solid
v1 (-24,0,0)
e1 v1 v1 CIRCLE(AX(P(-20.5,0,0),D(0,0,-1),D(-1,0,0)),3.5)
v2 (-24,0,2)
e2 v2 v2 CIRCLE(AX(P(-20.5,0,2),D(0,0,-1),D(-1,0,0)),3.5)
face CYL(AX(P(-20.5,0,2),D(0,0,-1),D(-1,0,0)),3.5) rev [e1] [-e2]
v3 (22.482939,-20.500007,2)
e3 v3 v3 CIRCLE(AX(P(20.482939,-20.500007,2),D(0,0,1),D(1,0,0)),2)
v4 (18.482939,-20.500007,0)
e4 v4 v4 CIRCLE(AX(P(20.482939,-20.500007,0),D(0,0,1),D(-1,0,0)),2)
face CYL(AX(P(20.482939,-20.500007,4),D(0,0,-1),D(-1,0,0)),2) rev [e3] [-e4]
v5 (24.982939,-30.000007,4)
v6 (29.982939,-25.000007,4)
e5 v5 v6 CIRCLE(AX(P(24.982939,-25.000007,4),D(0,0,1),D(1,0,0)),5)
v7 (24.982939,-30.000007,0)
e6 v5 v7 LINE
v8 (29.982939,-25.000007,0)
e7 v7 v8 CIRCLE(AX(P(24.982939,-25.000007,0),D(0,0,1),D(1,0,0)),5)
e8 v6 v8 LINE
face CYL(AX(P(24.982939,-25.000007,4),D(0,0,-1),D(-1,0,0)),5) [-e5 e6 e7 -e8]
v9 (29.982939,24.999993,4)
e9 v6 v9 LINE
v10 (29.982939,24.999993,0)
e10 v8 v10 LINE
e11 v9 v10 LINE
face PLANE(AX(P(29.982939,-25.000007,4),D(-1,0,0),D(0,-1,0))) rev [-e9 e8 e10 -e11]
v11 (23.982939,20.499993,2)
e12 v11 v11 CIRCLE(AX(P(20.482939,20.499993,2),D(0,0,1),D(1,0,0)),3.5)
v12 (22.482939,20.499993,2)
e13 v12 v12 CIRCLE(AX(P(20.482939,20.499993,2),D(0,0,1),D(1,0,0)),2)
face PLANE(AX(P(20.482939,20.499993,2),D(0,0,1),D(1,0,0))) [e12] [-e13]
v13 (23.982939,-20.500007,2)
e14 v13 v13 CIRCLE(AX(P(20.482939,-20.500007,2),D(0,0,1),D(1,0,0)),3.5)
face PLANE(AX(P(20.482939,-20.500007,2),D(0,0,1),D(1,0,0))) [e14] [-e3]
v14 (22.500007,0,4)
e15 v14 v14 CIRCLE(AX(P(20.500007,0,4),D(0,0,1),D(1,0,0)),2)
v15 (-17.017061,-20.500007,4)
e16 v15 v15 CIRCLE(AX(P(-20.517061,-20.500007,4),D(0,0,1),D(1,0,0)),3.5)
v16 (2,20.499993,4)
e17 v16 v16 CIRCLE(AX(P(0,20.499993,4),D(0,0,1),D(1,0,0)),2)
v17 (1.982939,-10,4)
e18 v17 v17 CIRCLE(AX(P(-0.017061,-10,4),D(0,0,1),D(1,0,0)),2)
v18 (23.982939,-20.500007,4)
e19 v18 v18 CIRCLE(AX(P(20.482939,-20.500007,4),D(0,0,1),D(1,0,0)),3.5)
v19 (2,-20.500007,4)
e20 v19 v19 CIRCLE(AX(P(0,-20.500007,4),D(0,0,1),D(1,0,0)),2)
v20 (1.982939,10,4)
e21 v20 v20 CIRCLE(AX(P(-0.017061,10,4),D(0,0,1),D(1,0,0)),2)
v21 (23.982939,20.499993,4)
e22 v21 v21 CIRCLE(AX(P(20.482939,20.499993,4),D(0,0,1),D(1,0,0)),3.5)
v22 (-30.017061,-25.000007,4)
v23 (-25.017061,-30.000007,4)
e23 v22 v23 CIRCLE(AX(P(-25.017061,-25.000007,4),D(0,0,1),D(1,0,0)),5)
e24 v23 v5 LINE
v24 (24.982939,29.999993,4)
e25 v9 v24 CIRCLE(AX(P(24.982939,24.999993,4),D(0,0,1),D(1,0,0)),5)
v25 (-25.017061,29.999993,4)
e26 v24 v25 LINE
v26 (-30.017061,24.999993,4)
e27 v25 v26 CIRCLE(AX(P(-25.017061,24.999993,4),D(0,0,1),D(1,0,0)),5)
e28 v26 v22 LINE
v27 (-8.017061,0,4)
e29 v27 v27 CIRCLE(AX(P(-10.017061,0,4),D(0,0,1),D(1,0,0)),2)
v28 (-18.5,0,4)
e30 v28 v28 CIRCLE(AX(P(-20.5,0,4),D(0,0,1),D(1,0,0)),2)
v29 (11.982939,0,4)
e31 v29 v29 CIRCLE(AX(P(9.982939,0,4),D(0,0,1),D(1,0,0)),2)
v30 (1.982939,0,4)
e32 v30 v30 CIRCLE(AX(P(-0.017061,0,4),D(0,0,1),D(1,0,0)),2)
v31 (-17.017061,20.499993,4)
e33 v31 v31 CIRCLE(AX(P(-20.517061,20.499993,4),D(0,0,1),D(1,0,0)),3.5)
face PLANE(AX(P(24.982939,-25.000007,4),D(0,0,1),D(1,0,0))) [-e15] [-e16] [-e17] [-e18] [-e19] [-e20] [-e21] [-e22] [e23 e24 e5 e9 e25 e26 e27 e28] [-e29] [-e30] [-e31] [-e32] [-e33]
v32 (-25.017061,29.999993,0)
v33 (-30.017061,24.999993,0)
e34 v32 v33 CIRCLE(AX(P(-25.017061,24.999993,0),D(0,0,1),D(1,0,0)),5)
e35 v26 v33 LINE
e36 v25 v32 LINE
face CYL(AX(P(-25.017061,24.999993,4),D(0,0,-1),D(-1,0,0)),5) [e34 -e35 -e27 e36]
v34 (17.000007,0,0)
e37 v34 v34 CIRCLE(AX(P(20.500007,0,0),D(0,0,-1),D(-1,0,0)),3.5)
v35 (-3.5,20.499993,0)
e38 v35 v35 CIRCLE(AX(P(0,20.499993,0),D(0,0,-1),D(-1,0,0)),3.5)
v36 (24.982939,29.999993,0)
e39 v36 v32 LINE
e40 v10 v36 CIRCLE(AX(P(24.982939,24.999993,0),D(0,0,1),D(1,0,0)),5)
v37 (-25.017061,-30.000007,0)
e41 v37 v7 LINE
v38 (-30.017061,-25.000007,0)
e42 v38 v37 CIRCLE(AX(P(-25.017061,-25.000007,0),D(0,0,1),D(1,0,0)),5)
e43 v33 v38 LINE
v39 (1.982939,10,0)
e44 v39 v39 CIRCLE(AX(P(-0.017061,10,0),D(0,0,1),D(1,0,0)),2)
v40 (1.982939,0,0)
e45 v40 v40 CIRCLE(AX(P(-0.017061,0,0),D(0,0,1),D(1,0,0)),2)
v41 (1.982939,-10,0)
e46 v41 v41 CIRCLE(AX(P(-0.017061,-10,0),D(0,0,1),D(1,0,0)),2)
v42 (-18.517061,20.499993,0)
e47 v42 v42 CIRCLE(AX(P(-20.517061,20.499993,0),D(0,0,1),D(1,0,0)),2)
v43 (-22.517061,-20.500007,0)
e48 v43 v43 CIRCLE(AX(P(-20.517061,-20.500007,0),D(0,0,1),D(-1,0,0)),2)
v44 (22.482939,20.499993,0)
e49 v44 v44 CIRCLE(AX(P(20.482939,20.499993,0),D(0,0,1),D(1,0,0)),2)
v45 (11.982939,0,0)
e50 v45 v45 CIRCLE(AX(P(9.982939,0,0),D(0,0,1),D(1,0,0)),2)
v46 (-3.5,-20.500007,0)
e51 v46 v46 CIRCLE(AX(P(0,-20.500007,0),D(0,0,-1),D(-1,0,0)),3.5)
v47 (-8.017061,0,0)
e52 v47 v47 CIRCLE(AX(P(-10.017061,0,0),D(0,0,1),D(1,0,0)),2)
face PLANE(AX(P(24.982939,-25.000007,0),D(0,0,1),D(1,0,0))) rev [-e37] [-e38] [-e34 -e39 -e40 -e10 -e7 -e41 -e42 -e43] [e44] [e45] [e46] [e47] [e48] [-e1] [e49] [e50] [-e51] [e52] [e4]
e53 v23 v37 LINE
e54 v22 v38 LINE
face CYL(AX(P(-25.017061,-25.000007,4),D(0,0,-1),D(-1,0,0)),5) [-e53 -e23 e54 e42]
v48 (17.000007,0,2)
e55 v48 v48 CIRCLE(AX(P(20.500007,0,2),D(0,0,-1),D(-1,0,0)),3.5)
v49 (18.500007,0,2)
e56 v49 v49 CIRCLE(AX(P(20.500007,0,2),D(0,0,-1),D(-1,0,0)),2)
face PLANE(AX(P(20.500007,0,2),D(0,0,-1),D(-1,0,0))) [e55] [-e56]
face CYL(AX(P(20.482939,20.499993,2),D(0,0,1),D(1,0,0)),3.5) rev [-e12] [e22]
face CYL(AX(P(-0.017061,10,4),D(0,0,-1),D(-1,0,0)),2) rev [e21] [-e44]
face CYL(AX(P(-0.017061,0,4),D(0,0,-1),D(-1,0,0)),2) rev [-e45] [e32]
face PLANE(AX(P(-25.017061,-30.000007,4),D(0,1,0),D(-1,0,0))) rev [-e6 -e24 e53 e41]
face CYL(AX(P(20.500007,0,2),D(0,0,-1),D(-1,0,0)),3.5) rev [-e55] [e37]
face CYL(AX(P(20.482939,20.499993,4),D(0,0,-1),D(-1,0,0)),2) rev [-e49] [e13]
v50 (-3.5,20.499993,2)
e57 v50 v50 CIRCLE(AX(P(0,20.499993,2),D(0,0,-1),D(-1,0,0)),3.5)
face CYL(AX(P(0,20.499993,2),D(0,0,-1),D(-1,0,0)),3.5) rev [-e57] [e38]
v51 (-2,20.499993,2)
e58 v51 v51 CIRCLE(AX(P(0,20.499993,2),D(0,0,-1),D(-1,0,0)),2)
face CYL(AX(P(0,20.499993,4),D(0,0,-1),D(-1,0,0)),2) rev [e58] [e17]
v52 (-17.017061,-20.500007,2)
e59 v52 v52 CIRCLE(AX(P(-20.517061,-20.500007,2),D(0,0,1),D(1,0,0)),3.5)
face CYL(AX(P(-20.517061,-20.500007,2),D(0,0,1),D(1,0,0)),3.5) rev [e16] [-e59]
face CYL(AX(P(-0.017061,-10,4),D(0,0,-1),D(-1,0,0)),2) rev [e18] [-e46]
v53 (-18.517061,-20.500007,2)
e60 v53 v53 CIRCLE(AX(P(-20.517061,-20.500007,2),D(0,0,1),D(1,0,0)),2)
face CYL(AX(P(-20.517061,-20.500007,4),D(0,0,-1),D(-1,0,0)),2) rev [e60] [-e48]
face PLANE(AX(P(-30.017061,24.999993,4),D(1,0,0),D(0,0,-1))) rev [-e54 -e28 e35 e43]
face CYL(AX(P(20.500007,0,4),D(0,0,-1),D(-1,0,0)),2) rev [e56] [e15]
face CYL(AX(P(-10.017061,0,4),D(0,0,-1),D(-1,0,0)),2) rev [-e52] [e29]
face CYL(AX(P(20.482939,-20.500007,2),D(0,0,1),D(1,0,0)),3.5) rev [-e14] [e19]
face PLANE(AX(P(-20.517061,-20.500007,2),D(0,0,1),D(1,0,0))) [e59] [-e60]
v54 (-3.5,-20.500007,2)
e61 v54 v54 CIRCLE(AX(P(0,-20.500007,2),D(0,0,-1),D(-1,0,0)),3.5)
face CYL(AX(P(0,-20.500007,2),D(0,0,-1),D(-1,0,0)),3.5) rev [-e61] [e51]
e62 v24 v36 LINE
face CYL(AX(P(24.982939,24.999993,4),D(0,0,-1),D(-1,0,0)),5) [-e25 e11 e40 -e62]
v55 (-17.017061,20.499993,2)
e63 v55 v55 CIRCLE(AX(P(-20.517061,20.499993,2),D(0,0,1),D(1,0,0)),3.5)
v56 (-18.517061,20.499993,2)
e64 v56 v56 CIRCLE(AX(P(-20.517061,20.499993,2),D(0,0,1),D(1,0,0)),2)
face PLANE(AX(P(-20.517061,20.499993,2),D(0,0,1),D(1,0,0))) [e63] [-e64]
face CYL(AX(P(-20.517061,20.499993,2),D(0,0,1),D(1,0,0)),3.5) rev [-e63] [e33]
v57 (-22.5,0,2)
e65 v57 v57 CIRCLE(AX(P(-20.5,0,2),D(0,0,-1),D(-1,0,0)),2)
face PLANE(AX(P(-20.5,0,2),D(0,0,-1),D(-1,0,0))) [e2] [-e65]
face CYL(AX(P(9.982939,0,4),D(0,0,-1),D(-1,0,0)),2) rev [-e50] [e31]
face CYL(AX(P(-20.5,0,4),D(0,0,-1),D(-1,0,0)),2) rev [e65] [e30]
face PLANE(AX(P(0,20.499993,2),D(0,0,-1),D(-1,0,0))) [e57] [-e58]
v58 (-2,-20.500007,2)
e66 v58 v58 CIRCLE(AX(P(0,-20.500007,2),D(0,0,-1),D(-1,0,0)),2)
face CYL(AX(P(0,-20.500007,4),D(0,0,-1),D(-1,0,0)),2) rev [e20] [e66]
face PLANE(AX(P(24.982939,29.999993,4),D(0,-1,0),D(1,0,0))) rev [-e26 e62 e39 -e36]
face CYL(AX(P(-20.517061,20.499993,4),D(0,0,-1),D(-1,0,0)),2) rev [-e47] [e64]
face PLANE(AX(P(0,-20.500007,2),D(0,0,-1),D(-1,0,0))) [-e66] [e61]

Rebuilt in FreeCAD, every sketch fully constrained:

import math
import FreeCAD as App
import Part
import Sketcher
Q = App.Units.Quantity

doc = App.newDocument("Part")
params = doc.addObject("Spreadsheet::Sheet", "Params")
for row, (alias, value) in enumerate([
    ("sketch1_diameter", "4 mm"),
    ("sketch1_radius", "5 mm"),
    ("sketch1_width", "50 mm"),
    ("pad1_length", "4 mm"),
    ("sketch2_diameter", "7 mm"),
    ("pocket1_length", "2 mm"),
    ("sketch3_diameter", "7 mm"),
    ("pocket2_length", "2 mm"),
], start=1):
    params.set(f"A{row}", alias)
    params.set(f"B{row}", "=" + value)
    params.setAlias(f"B{row}", alias)

body = doc.addObject("PartDesign::Body", "Body")

# Sketch on XY plane
sketch1 = body.newObject("Sketcher::SketchObject", "Sketch")
sketch1.AttachmentSupport = (doc.getObject("XY_Plane"), [""])
sketch1.MapMode = "FlatFace"
sketch1.addGeometry(Part.LineSegment(App.Vector(30, -25, 0), App.Vector(30, 25, 0)), False)
sketch1.addGeometry(Part.ArcOfCircle(Part.Circle(App.Vector(25, 25, 0), App.Vector(0, 0, 1), 5), math.radians(0), math.radians(90)), False)
sketch1.addGeometry(Part.LineSegment(App.Vector(25, 30, 0), App.Vector(-25, 30, 0)), False)
sketch1.addGeometry(Part.ArcOfCircle(Part.Circle(App.Vector(-25, 25, 0), App.Vector(0, 0, 1), 5), math.radians(90), math.radians(180)), False)
sketch1.addGeometry(Part.LineSegment(App.Vector(-30, 25, 0), App.Vector(-30, -25, 0)), False)
sketch1.addGeometry(Part.ArcOfCircle(Part.Circle(App.Vector(-25, -25, 0), App.Vector(0, 0, 1), 5), math.radians(180), math.radians(270)), False)
sketch1.addGeometry(Part.LineSegment(App.Vector(-25, -30, 0), App.Vector(25, -30, 0)), False)
sketch1.addGeometry(Part.ArcOfCircle(Part.Circle(App.Vector(25, -25, 0), App.Vector(0, 0, 1), 5), math.radians(-90), math.radians(0)), False)
sketch1.addGeometry(Part.Circle(App.Vector(-20.5, -20.5, 0), App.Vector(0, 0, 1), 2), False)
sketch1.addGeometry(Part.Circle(App.Vector(0, -10, 0), App.Vector(0, 0, 1), 2), False)
sketch1.addGeometry(Part.Circle(App.Vector(0, -20.5, 0), App.Vector(0, 0, 1), 2), False)
sketch1.addGeometry(Part.Circle(App.Vector(20.5, -20.5, 0), App.Vector(0, 0, 1), 2), False)
sketch1.addGeometry(Part.Circle(App.Vector(-20.5, 0, 0), App.Vector(0, 0, 1), 2), False)
sketch1.addGeometry(Part.Circle(App.Vector(-10, 0, 0), App.Vector(0, 0, 1), 2), False)
sketch1.addGeometry(Part.Circle(App.Vector(0, 0, 0), App.Vector(0, 0, 1), 2), False)
sketch1.addGeometry(Part.Circle(App.Vector(0, 10, 0), App.Vector(0, 0, 1), 2), False)
sketch1.addGeometry(Part.Circle(App.Vector(-20.5, 20.5, 0), App.Vector(0, 0, 1), 2), False)
sketch1.addGeometry(Part.Circle(App.Vector(10, 0, 0), App.Vector(0, 0, 1), 2), False)
sketch1.addGeometry(Part.Circle(App.Vector(20.5, 0, 0), App.Vector(0, 0, 1), 2), False)
sketch1.addGeometry(Part.Circle(App.Vector(0, 20.5, 0), App.Vector(0, 0, 1), 2), False)
sketch1.addGeometry(Part.Circle(App.Vector(20.5, 20.5, 0), App.Vector(0, 0, 1), 2), False)
sketch1.addConstraint(Sketcher.Constraint("Tangent", 0, 2, 1, 1))
sketch1.addConstraint(Sketcher.Constraint("Tangent", 1, 2, 2, 1))
sketch1.addConstraint(Sketcher.Constraint("Tangent", 2, 2, 3, 1))
sketch1.addConstraint(Sketcher.Constraint("Tangent", 3, 2, 4, 1))
sketch1.addConstraint(Sketcher.Constraint("Tangent", 4, 2, 5, 1))
sketch1.addConstraint(Sketcher.Constraint("Tangent", 5, 2, 6, 1))
sketch1.addConstraint(Sketcher.Constraint("Tangent", 6, 2, 7, 1))
sketch1.addConstraint(Sketcher.Constraint("Tangent", 7, 2, 0, 1))
sketch1.addConstraint(Sketcher.Constraint("Vertical", 0))
sketch1.addConstraint(Sketcher.Constraint("Horizontal", 2))
sketch1.addConstraint(Sketcher.Constraint("Vertical", 4))
sketch1.addConstraint(Sketcher.Constraint("Horizontal", 6))
sketch1.addConstraint(Sketcher.Constraint("Equal", 1, 3))
sketch1.addConstraint(Sketcher.Constraint("Equal", 3, 5))
sketch1.addConstraint(Sketcher.Constraint("Equal", 5, 7))
sketch1.addConstraint(Sketcher.Constraint("Equal", 8, 9))
sketch1.addConstraint(Sketcher.Constraint("Equal", 9, 10))
sketch1.addConstraint(Sketcher.Constraint("Equal", 10, 11))
sketch1.addConstraint(Sketcher.Constraint("Equal", 11, 12))
sketch1.addConstraint(Sketcher.Constraint("Equal", 12, 13))
sketch1.addConstraint(Sketcher.Constraint("Equal", 13, 14))
sketch1.addConstraint(Sketcher.Constraint("Equal", 14, 15))
sketch1.addConstraint(Sketcher.Constraint("Equal", 15, 16))
sketch1.addConstraint(Sketcher.Constraint("Equal", 16, 17))
sketch1.addConstraint(Sketcher.Constraint("Equal", 17, 18))
sketch1.addConstraint(Sketcher.Constraint("Equal", 18, 19))
sketch1.addConstraint(Sketcher.Constraint("Equal", 19, 20))
sketch1.addConstraint(Sketcher.Constraint("Symmetric", 12, 3, 18, 3, -1, 1))
sketch1.addConstraint(Sketcher.Constraint("Symmetric", 9, 3, 15, 3, -1))
sketch1.addConstraint(Sketcher.Constraint("PointOnObject", 10, 3, -2))
sketch1.addConstraint(Sketcher.Constraint("PointOnObject", 12, 3, -1))
sketch1.addConstraint(Sketcher.Constraint("PointOnObject", 13, 3, -1))
sketch1.addConstraint(Sketcher.Constraint("PointOnObject", 14, 3, -1))
sketch1.addConstraint(Sketcher.Constraint("PointOnObject", 17, 3, -1))
sketch1.addConstraint(Sketcher.Constraint("PointOnObject", 19, 3, -2))
sketch1.addConstraint(Sketcher.Constraint("Horizontal", 8, 3, 10, 3))
sketch1.addConstraint(Sketcher.Constraint("Horizontal", 10, 3, 11, 3))
sketch1.addConstraint(Sketcher.Constraint("Horizontal", 16, 3, 19, 3))
sketch1.addConstraint(Sketcher.Constraint("Horizontal", 19, 3, 20, 3))
sketch1.addConstraint(Sketcher.Constraint("Vertical", 9, 3, 14, 3))
sketch1.addConstraint(Sketcher.Constraint("Vertical", 8, 3, 16, 3))
sketch1.addConstraint(Sketcher.Constraint("Vertical", 11, 3, 20, 3))
sketch1.addConstraint(Sketcher.Constraint("Equal", 6, 0))
sketch1.addConstraint(Sketcher.Constraint("Diameter", 8, Q("4 mm")))
sketch1.addConstraint(Sketcher.Constraint("Radius", 1, Q("5 mm")))
sketch1.addConstraint(Sketcher.Constraint("DistanceX", 2, 2, 2, 1, Q("50 mm")))
sketch1.addConstraint(Sketcher.Constraint("DistanceY", 9, 3, -1, 1, Q("10 mm")))
sketch1.addConstraint(Sketcher.Constraint("DistanceX", 5, 3, 9, 3, Q("25 mm")))
sketch1.addConstraint(Sketcher.Constraint("DistanceX", 8, 3, 11, 3, Q("41 mm")))
sketch1.addConstraint(Sketcher.Constraint("DistanceX", 13, 3, 9, 3, Q("10 mm")))
sketch1.addConstraint(Sketcher.Constraint("DistanceX", 14, 3, 17, 3, Q("10 mm")))
sketch1.addConstraint(Sketcher.Constraint("DistanceX", 12, 3, -1, 1, Q("20.5 mm")))
sketch1.addConstraint(Sketcher.Constraint("DistanceX", 5, 3, 8, 3, Q("4.5 mm")))
sketch1.addConstraint(Sketcher.Constraint("DistanceY", 5, 3, 8, 3, Q("4.5 mm")))
sketch1.addConstraint(Sketcher.Constraint("DistanceY", 16, 3, 3, 3, Q("4.5 mm")))
sketch1.addConstraint(Sketcher.Constraint("DistanceX", -1, 1, 1, 3, Q("24.982939 mm")))
sketch1.addConstraint(Sketcher.Constraint("DistanceY", -1, 1, 1, 3, Q("24.999993 mm")))
sketch1.setExpression("Constraints[43]", "Params.sketch1_diameter")
sketch1.setExpression("Constraints[44]", "Params.sketch1_radius")
sketch1.setExpression("Constraints[45]", "Params.sketch1_width")
pad1 = body.newObject("PartDesign::Pad", "Pad")
pad1.Profile = sketch1
pad1.setExpression("Length", "Params.pad1_length")

# Sketch on XY plane
sketch2 = body.newObject("Sketcher::SketchObject", "Sketch001")
sketch2.AttachmentSupport = (doc.getObject("XY_Plane"), [""])
sketch2.MapMode = "FlatFace"
sketch2.AttachmentOffset = App.Placement(App.Vector(0, 0, 4), App.Rotation())
sketch2.addGeometry(Part.Circle(App.Vector(-20.5, 20.5, 0), App.Vector(0, 0, 1), 3.5), False)
sketch2.addGeometry(Part.Circle(App.Vector(-20.5, -20.5, 0), App.Vector(0, 0, 1), 3.5), False)
sketch2.addGeometry(Part.Circle(App.Vector(20.5, -20.5, 0), App.Vector(0, 0, 1), 3.5), False)
sketch2.addGeometry(Part.Circle(App.Vector(20.5, 20.5, 0), App.Vector(0, 0, 1), 3.5), False)
sketch2.addConstraint(Sketcher.Constraint("Equal", 0, 1))
sketch2.addConstraint(Sketcher.Constraint("Equal", 1, 2))
sketch2.addConstraint(Sketcher.Constraint("Equal", 2, 3))
sketch2.addConstraint(Sketcher.Constraint("Horizontal", 1, 3, 2, 3))
sketch2.addConstraint(Sketcher.Constraint("Horizontal", 0, 3, 3, 3))
sketch2.addConstraint(Sketcher.Constraint("Vertical", 0, 3, 1, 3))
sketch2.addConstraint(Sketcher.Constraint("Vertical", 2, 3, 3, 3))
sketch2.addConstraint(Sketcher.Constraint("Diameter", 0, Q("7 mm")))
sketch2.addConstraint(Sketcher.Constraint("DistanceY", 1, 3, 0, 3, Q("41 mm")))
sketch2.addConstraint(Sketcher.Constraint("DistanceX", 1, 3, 2, 3, Q("41 mm")))
sketch2.addConstraint(Sketcher.Constraint("DistanceX", 0, 3, -1, 1, Q("20.517061 mm")))
sketch2.addConstraint(Sketcher.Constraint("DistanceY", -1, 1, 0, 3, Q("20.499993 mm")))
sketch2.setExpression("Constraints[7]", "Params.sketch2_diameter")
pocket1 = body.newObject("PartDesign::Pocket", "Pocket")
pocket1.Profile = sketch2
pocket1.setExpression("Length", "Params.pocket1_length")

# Sketch on XY plane
sketch3 = body.newObject("Sketcher::SketchObject", "Sketch002")
sketch3.AttachmentSupport = (doc.getObject("XY_Plane"), [""])
sketch3.MapMode = "FlatFace"
sketch3.addGeometry(Part.Circle(App.Vector(20.5, 0, 0), App.Vector(0, 0, 1), 3.5), False)
sketch3.addGeometry(Part.Circle(App.Vector(-20.5, 0, 0), App.Vector(0, 0, 1), 3.5), False)
sketch3.addGeometry(Part.Circle(App.Vector(0, 20.5, 0), App.Vector(0, 0, 1), 3.5), False)
sketch3.addGeometry(Part.Circle(App.Vector(0, -20.5, 0), App.Vector(0, 0, 1), 3.5), False)
sketch3.addConstraint(Sketcher.Constraint("Equal", 0, 1))
sketch3.addConstraint(Sketcher.Constraint("Equal", 1, 2))
sketch3.addConstraint(Sketcher.Constraint("Equal", 2, 3))
sketch3.addConstraint(Sketcher.Constraint("Symmetric", 0, 3, 1, 3, -1, 1))
sketch3.addConstraint(Sketcher.Constraint("PointOnObject", 0, 3, -1))
sketch3.addConstraint(Sketcher.Constraint("PointOnObject", 2, 3, -2))
sketch3.addConstraint(Sketcher.Constraint("PointOnObject", 3, 3, -2))
sketch3.addConstraint(Sketcher.Constraint("Diameter", 0, Q("7 mm")))
sketch3.addConstraint(Sketcher.Constraint("DistanceY", 3, 3, 2, 3, Q("41 mm")))
sketch3.addConstraint(Sketcher.Constraint("DistanceX", 1, 3, -1, 1, Q("20.5 mm")))
sketch3.addConstraint(Sketcher.Constraint("DistanceY", -1, 1, 2, 3, Q("20.499993 mm")))
sketch3.setExpression("Constraints[7]", "Params.sketch3_diameter")
pocket2 = body.newObject("PartDesign::Pocket", "Pocket001")
pocket2.Profile = sketch3
pocket2.setExpression("Length", "Params.pocket2_length")
pocket2.Reversed = True

doc.recompute()
